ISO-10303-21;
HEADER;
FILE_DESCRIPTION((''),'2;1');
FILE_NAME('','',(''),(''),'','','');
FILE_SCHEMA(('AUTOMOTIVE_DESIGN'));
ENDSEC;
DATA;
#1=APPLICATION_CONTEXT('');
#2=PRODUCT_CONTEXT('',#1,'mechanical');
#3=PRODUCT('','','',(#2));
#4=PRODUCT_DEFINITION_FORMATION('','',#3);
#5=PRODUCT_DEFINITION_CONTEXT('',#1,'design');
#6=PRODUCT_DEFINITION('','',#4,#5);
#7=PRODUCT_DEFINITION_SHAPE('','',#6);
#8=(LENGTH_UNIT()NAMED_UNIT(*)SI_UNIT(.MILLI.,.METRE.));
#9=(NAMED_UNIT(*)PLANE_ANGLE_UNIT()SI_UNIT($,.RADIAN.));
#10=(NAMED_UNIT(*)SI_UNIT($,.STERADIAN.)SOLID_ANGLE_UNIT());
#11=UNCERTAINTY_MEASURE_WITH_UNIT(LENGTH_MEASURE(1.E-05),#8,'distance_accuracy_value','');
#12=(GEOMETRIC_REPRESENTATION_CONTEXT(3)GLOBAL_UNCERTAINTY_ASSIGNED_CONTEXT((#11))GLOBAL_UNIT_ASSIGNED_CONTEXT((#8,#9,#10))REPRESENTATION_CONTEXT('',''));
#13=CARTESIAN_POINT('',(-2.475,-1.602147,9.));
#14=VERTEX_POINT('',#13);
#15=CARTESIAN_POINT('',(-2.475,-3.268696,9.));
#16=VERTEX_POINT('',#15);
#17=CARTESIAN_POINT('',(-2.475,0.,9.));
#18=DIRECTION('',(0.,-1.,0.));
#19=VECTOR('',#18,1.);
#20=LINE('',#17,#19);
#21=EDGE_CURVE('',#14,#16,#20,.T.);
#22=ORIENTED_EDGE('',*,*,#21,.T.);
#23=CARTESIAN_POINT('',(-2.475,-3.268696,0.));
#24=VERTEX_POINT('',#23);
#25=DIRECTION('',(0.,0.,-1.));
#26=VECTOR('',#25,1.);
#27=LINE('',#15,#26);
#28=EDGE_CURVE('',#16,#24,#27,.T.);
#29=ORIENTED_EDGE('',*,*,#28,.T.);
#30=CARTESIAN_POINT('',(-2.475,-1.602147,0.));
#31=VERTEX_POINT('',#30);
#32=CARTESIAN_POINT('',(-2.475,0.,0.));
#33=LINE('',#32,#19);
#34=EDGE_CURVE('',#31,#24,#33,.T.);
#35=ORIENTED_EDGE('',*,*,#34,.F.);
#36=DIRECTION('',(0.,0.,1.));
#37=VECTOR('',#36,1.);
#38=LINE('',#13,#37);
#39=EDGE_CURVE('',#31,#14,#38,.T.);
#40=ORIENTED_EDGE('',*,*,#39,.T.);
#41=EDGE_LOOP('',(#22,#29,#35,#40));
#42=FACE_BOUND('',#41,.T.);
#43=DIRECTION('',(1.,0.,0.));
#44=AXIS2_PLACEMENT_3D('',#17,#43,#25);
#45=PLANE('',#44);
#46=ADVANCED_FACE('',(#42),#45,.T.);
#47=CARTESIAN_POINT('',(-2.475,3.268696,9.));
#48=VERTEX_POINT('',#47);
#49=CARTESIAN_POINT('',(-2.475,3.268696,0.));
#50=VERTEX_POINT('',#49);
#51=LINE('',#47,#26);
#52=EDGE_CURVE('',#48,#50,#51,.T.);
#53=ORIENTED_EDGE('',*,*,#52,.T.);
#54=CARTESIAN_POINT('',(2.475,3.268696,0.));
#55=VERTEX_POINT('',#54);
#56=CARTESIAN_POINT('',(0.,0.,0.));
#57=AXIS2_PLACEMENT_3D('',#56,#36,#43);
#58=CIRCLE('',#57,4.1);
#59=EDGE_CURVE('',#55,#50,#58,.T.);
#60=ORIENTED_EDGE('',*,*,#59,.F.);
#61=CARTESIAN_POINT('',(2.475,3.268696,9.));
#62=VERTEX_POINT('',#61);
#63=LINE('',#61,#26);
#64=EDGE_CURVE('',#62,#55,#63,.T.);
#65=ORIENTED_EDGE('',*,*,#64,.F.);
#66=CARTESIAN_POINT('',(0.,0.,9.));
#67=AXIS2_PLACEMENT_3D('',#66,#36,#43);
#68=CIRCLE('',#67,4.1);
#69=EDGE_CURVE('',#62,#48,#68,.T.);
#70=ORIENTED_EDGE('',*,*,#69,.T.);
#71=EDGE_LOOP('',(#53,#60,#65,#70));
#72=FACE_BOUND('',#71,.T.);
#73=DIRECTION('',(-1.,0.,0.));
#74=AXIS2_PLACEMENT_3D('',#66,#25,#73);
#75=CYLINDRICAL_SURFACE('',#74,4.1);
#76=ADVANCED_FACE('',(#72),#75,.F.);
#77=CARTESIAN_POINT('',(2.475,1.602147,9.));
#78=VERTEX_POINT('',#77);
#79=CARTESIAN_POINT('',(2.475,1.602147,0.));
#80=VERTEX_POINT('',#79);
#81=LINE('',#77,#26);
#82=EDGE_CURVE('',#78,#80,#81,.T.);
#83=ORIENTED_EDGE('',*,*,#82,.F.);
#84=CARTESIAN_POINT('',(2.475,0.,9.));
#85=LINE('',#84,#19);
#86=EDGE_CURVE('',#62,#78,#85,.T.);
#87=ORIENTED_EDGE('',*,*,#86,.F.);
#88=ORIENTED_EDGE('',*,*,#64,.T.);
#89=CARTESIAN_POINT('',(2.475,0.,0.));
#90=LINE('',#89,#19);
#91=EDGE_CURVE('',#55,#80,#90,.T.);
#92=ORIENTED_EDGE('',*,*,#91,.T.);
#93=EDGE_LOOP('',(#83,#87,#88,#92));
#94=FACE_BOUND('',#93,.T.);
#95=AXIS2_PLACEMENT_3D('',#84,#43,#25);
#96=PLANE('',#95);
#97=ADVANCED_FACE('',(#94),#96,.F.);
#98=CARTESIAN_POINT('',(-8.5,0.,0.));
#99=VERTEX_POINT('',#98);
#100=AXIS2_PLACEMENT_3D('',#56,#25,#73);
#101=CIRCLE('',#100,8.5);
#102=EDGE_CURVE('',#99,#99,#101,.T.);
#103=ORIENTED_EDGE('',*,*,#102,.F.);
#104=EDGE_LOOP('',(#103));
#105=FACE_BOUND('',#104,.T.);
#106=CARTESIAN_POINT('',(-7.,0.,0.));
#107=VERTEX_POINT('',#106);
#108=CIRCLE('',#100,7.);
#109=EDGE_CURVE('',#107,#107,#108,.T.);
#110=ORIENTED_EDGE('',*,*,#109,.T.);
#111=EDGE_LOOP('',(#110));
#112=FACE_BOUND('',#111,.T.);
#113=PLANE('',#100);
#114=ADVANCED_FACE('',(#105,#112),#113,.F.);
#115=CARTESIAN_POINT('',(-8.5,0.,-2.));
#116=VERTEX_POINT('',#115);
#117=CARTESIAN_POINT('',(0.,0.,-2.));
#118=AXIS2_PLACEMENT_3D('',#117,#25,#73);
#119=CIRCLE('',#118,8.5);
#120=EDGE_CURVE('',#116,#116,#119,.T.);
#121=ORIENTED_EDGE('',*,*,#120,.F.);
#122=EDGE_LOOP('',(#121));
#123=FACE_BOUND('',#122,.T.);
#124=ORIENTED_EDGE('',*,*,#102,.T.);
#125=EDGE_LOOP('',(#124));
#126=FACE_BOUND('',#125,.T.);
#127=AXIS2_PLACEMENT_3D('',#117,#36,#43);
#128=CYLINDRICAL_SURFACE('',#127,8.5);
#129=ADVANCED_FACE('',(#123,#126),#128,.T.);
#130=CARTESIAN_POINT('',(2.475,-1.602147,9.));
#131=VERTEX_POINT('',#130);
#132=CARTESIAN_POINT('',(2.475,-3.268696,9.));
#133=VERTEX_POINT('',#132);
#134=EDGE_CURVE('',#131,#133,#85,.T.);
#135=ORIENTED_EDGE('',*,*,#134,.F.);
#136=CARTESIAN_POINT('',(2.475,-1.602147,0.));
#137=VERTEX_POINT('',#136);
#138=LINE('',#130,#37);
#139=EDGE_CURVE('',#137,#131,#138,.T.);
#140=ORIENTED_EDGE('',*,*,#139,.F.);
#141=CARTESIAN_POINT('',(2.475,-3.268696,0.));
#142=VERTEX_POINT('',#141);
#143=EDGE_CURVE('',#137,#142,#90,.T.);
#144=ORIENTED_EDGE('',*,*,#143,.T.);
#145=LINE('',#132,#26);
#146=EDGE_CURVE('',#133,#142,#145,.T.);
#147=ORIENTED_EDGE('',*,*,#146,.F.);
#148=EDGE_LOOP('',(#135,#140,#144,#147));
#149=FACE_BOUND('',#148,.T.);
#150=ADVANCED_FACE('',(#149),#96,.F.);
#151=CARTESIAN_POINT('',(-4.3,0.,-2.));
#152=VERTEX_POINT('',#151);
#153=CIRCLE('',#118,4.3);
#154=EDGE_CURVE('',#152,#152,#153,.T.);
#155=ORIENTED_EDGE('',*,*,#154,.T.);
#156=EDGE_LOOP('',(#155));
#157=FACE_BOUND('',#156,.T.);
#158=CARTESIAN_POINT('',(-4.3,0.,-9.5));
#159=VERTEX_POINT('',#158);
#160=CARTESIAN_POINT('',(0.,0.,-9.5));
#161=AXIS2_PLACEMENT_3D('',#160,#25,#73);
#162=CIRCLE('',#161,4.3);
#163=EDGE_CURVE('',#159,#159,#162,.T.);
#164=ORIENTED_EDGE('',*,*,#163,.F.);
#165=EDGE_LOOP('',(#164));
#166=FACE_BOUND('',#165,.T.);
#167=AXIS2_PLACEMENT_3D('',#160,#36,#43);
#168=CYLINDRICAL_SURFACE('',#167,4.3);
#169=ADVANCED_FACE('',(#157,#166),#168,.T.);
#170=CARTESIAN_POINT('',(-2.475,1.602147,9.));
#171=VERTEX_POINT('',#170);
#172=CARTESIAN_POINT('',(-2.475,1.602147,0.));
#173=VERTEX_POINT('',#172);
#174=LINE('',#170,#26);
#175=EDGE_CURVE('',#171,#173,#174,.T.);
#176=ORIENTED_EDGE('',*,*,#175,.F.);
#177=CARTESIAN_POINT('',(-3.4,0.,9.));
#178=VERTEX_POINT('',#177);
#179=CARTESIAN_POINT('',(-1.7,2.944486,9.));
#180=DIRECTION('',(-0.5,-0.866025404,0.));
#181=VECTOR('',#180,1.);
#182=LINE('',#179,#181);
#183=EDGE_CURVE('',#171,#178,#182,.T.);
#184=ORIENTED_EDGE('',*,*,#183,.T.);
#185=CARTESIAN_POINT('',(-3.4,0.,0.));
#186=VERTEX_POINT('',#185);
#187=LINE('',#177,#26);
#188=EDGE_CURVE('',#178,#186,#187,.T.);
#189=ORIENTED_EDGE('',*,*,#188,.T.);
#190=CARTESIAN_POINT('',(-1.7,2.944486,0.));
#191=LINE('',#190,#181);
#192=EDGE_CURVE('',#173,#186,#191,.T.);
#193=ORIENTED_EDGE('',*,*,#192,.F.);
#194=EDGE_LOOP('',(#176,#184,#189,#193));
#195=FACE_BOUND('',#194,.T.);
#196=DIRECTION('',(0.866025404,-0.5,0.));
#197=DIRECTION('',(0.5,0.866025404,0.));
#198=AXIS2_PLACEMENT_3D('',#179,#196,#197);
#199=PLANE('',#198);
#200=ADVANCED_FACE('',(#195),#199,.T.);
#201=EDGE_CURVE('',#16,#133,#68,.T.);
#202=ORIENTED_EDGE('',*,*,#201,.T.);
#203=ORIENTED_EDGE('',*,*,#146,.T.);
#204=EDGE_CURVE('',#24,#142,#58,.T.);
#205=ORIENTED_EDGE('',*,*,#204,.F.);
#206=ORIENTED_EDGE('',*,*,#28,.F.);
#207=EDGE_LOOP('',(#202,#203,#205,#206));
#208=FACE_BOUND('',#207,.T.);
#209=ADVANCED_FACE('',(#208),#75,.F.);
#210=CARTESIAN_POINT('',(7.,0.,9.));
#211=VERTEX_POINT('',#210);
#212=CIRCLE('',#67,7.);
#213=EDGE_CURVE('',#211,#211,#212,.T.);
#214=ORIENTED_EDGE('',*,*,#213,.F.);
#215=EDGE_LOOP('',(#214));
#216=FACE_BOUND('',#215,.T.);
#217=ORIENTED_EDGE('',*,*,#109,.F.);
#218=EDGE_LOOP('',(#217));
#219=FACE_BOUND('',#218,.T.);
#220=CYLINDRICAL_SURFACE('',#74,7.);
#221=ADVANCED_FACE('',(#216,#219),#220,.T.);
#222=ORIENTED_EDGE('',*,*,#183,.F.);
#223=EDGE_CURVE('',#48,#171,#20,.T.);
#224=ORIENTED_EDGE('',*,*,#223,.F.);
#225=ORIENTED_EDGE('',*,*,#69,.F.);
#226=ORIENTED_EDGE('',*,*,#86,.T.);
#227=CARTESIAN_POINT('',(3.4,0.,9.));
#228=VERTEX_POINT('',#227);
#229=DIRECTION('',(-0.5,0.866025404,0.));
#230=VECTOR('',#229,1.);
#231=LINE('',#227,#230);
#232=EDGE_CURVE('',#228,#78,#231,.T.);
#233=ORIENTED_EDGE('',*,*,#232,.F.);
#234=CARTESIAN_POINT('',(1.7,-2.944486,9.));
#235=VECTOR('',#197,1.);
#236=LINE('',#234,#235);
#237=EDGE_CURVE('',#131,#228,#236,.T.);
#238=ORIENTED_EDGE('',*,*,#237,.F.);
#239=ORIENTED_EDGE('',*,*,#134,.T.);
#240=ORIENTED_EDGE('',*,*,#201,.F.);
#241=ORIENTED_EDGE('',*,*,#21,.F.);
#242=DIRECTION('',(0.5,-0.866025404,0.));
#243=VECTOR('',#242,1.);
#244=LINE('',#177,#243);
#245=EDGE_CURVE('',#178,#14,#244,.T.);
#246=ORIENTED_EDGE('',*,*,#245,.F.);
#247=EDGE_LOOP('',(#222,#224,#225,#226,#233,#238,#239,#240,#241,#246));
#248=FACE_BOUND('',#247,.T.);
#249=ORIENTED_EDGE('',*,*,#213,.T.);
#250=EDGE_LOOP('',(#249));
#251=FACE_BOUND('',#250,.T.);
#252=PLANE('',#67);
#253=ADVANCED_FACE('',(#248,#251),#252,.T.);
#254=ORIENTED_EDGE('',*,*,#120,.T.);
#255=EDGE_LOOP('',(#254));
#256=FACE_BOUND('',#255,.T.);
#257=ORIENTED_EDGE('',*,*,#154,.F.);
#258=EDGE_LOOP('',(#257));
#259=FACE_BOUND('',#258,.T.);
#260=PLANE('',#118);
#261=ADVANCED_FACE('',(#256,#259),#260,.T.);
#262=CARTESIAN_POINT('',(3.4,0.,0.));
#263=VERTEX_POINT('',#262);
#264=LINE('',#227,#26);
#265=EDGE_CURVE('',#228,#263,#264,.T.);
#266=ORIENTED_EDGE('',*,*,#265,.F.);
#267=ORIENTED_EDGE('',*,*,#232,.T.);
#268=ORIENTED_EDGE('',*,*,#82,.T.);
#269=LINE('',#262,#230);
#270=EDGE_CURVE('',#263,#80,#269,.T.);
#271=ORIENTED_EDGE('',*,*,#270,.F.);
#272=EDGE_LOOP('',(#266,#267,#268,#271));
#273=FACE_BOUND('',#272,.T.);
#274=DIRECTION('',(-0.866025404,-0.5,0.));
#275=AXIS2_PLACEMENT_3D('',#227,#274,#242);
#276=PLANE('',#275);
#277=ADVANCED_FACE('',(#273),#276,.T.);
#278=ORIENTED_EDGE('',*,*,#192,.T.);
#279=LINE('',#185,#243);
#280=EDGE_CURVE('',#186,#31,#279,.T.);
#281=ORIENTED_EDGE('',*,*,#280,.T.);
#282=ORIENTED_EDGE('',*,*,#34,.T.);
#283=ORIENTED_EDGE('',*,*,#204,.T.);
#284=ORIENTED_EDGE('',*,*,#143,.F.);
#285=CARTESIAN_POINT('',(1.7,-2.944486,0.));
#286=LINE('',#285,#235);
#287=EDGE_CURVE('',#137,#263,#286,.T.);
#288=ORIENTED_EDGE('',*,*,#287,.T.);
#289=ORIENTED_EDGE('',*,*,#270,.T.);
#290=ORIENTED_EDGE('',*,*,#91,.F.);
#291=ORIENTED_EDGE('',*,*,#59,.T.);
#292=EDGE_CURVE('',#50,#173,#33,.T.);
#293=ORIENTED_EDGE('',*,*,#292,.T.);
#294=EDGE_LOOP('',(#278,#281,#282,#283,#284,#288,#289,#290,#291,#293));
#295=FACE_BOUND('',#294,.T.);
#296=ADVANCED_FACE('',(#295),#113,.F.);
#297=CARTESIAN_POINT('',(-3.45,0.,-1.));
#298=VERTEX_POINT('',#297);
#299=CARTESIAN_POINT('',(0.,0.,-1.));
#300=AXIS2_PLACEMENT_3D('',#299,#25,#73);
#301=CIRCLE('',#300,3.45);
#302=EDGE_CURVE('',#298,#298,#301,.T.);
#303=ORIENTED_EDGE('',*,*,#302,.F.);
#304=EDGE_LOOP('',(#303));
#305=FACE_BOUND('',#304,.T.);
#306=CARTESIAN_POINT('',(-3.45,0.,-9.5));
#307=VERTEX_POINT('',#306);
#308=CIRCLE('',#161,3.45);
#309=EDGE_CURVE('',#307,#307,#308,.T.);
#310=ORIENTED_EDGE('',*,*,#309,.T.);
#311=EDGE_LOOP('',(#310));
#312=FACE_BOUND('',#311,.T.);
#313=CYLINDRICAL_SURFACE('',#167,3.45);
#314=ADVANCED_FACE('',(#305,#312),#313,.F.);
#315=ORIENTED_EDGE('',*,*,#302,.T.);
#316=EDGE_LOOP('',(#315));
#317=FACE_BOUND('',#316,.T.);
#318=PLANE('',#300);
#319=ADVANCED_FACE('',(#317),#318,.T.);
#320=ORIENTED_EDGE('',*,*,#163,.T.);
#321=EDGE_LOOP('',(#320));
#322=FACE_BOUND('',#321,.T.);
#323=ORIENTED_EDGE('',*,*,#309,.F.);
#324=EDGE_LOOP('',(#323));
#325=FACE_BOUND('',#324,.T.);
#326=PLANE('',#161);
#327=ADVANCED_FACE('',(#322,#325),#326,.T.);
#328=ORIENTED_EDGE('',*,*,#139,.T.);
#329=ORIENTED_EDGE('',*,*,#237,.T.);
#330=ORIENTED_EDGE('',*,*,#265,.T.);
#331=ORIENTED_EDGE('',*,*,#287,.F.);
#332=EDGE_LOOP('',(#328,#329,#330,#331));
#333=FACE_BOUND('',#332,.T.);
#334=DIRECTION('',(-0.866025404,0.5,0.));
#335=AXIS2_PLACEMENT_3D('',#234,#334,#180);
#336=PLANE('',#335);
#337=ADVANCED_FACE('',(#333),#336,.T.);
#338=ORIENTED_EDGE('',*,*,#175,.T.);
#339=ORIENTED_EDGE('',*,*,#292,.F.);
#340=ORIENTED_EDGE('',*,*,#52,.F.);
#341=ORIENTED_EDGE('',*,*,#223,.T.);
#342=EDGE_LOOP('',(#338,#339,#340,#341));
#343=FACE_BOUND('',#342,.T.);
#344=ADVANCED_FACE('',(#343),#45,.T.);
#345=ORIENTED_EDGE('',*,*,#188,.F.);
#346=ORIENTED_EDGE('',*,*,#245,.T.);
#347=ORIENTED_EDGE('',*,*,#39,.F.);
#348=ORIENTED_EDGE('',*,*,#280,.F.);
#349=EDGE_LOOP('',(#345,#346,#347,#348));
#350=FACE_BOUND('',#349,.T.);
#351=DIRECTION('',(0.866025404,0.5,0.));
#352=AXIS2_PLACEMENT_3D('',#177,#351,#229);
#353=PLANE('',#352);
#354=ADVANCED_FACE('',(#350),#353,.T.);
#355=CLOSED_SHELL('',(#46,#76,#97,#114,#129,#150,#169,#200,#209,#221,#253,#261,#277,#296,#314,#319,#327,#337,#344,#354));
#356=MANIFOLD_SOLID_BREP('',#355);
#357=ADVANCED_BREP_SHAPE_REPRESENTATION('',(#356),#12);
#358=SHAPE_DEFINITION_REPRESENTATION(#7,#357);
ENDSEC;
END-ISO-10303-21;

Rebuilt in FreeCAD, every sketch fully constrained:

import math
import FreeCAD as App
import Part
import Sketcher
Q = App.Units.Quantity

doc = App.newDocument("Part")
body = doc.addObject("PartDesign::Body", "Body")

# Sketch on XY plane
sketch1 = body.newObject("Sketcher::SketchObject", "Sketch")
sketch1.AttachmentSupport = (doc.getObject("XY_Plane"), [""])
sketch1.MapMode = "FlatFace"
sketch1.addGeometry([
    Part.Circle(App.Vector(0, 0, 0), App.Vector(0, 0, 1), 7),  # 0
    Part.ArcOfCircle(Part.Circle(App.Vector(0, 0, 0), App.Vector(0, 0, 1), 4.1), math.radians(53), math.radians(127)),  # 1
    Part.LineSegment(App.Vector(2.5, 3.3, 0), App.Vector(2.5, -3.3, 0)),  # 2
    Part.ArcOfCircle(Part.Circle(App.Vector(0, 0, 0), App.Vector(0, 0, 1), 4.1), math.radians(-127), math.radians(-53)),  # 3
    Part.LineSegment(App.Vector(-2.5, -3.3, 0), App.Vector(-2.5, 3.3, 0)),  # 4
], False)
sketch1.addConstraint([
    Sketcher.Constraint("Coincident", 1, 1, 2, 1),
    Sketcher.Constraint("Coincident", 2, 2, 3, 2),
    Sketcher.Constraint("Coincident", 3, 1, 4, 1),
    Sketcher.Constraint("Coincident", 4, 2, 1, 2),
    Sketcher.Constraint("Vertical", 2),
    Sketcher.Constraint("Vertical", 4),
    Sketcher.Constraint("Coincident", 0, 3, -1, 1),
    Sketcher.Constraint("Coincident", 1, 3, -1, 1),
    Sketcher.Constraint("Coincident", 3, 3, -1, 1),
    Sketcher.Constraint("Equal", 1, 3),
    Sketcher.Constraint("Horizontal", 2, 2, 3, 1),
    Sketcher.Constraint("Diameter", 0, Q("14 mm")),
    Sketcher.Constraint("Radius", 1, Q("4.1 mm")),
    Sketcher.Constraint("DistanceX", 3, 1, 2, 2, Q("4.95 mm")),
])
pad1 = body.newObject("PartDesign::Pad", "Pad")
pad1.Profile = sketch1
pad1.Length = 9

# Sketch on XY plane
sketch2 = body.newObject("Sketcher::SketchObject", "Sketch001")
sketch2.AttachmentSupport = (doc.getObject("XY_Plane"), [""])
sketch2.MapMode = "FlatFace"
sketch2.addGeometry(Part.Circle(App.Vector(0, 0, 0), App.Vector(0, 0, 1), 8), False)
sketch2.addConstraint([
    Sketcher.Constraint("Coincident", 0, 3, -1, 1),
    Sketcher.Constraint("Diameter", 0, Q("17 mm")),
])
pad2 = body.newObject("PartDesign::Pad", "Pad001")
pad2.Profile = sketch2
pad2.Length = 2
pad2.Reversed = True

# Sketch on XY plane
sketch3 = body.newObject("Sketcher::SketchObject", "Sketch002")
sketch3.AttachmentSupport = (doc.getObject("XY_Plane"), [""])
sketch3.MapMode = "FlatFace"
sketch3.addGeometry([
    Part.LineSegment(App.Vector(-3.4, 0, 0), App.Vector(-1.7, -2.9, 0)),  # 0
    Part.LineSegment(App.Vector(-1.7, -2.9, 0), App.Vector(1.7, -2.9, 0)),  # 1
    Part.LineSegment(App.Vector(1.7, -2.9, 0), App.Vector(3.4, 0, 0)),  # 2
    Part.LineSegment(App.Vector(3.4, 0, 0), App.Vector(1.7, 2.9, 0)),  # 3
    Part.LineSegment(App.Vector(1.7, 2.9, 0), App.Vector(-1.7, 2.9, 0)),  # 4
    Part.LineSegment(App.Vector(-1.7, 2.9, 0), App.Vector(-3.4, 0, 0)),  # 5
], False)
sketch3.addConstraint([
    Sketcher.Constraint("Coincident", 0, 2, 1, 1),
    Sketcher.Constraint("Coincident", 1, 2, 2, 1),
    Sketcher.Constraint("Coincident", 2, 2, 3, 1),
    Sketcher.Constraint("Coincident", 3, 2, 4, 1),
    Sketcher.Constraint("Coincident", 4, 2, 5, 1),
    Sketcher.Constraint("Coincident", 5, 2, 0, 1),
    Sketcher.Constraint("Horizontal", 1),
    Sketcher.Constraint("Horizontal", 4),
    Sketcher.Constraint("Symmetric", 0, 2, 3, 2, -1, 1),
    Sketcher.Constraint("Symmetric", 2, 2, 5, 2, -1, 1),
    Sketcher.Constraint("PointOnObject", 2, 2, -1),
    Sketcher.Constraint("Parallel", 2, 5),
    Sketcher.Constraint("Vertical", 1, 2, 3, 2),
    Sketcher.Constraint("Angle", 0, Q("-60 deg")),
    Sketcher.Constraint("DistanceX", 1, 1, 1, 2, Q("3.4 mm")),
    Sketcher.Constraint("Distance", 0, Q("3.4 mm")),
])
pocket1 = body.newObject("PartDesign::Pocket", "Pocket")
pocket1.Profile = sketch3
pocket1.Type = "ThroughAll"
pocket1.Reversed = True

# Sketch on XY plane
sketch4 = body.newObject("Sketcher::SketchObject", "Sketch003")
sketch4.AttachmentSupport = (doc.getObject("XY_Plane"), [""])
sketch4.MapMode = "FlatFace"
sketch4.AttachmentOffset = App.Placement(App.Vector(0, 0, -2), App.Rotation())
sketch4.addGeometry(Part.Circle(App.Vector(0, 0, 0), App.Vector(0, 0, 1), 4.3), False)
sketch4.addConstraint([
    Sketcher.Constraint("Coincident", 0, 3, -1, 1),
    Sketcher.Constraint("Diameter", 0, Q("8.6 mm")),
])
pad3 = body.newObject("PartDesign::Pad", "Pad002")
pad3.Profile = sketch4
pad3.Length = 7.5
pad3.Reversed = True

# Sketch on XY plane
sketch5 = body.newObject("Sketcher::SketchObject", "Sketch004")
sketch5.AttachmentSupport = (doc.getObject("XY_Plane"), [""])
sketch5.MapMode = "FlatFace"
sketch5.AttachmentOffset = App.Placement(App.Vector(0, 0, -2), App.Rotation())
sketch5.addGeometry(Part.Circle(App.Vector(0, 0, 0), App.Vector(0, 0, 1), 3.5), False)
sketch5.addConstraint([
    Sketcher.Constraint("Coincident", 0, 3, -1, 1),
    Sketcher.Constraint("Diameter", 0, Q("6.9 mm")),
])
pocket2 = body.newObject("PartDesign::Pocket", "Pocket001")
pocket2.Profile = sketch5
pocket2.Type = "TwoLengths"
pocket2.Length = 17.294171
pocket2.Length2 = 1

doc.recompute()
